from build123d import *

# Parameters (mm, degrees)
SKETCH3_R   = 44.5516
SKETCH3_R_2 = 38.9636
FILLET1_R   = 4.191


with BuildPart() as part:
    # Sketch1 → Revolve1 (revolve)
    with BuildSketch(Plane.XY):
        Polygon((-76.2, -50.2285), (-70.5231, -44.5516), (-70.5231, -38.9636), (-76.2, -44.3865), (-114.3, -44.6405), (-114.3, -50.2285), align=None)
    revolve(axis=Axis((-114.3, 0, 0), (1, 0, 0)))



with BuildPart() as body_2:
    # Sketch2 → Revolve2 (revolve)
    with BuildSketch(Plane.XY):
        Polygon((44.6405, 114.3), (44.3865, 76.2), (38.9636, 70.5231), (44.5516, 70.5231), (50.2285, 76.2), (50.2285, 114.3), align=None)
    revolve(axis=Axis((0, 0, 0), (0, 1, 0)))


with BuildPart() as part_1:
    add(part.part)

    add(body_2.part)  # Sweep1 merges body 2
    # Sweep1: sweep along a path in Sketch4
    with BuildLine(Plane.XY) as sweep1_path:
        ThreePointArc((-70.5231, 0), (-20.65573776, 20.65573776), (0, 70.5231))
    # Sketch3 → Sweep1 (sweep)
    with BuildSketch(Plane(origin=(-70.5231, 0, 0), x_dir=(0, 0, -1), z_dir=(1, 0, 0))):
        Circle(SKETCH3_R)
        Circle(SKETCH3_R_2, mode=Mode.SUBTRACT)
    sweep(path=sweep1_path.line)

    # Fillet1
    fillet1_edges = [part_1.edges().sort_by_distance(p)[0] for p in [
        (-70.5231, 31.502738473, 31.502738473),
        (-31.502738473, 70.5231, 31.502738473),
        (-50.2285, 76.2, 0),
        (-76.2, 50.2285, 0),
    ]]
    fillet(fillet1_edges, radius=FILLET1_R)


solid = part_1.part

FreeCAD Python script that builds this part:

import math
import FreeCAD as App
import Part
import Sketcher
Q = App.Units.Quantity


def edges_at(feature, points):
    """Names of the edges that pass closest to the given points."""
    edges = feature.Shape.Edges
    near = lambda p: min(range(len(edges)), key=lambda i: edges[i].distToShape(Part.Vertex(*p))[0])
    return sorted({f"Edge{near(p) + 1}" for p in points})

doc = App.newDocument("Part")
body = doc.addObject("PartDesign::Body", "Body")

# Sketch on XY plane
sketch1 = doc.addObject("Sketcher::SketchObject", "Sketch")
body.addObject(sketch1)
sketch1.AttachmentSupport = (doc.XY_Plane, [""])
sketch1.MapMode = "FlatFace"
sketch1.addGeometry(Part.LineSegment(App.Vector(-76, -50, 0), App.Vector(-71, -45, 0)), False)
sketch1.addGeometry(Part.LineSegment(App.Vector(-71, -45, 0), App.Vector(-71, -39, 0)), False)
sketch1.addGeometry(Part.LineSegment(App.Vector(-71, -39, 0), App.Vector(-76, -44, 0)), False)
sketch1.addGeometry(Part.LineSegment(App.Vector(-76, -44, 0), App.Vector(-114, -45, 0)), False)
sketch1.addGeometry(Part.LineSegment(App.Vector(-114, -45, 0), App.Vector(-114, -50, 0)), False)
sketch1.addGeometry(Part.LineSegment(App.Vector(-114, -50, 0), App.Vector(-76, -50, 0)), False)
sketch1.addConstraint(Sketcher.Constraint("Coincident", 0, 2, 1, 1))
sketch1.addConstraint(Sketcher.Constraint("Coincident", 1, 2, 2, 1))
sketch1.addConstraint(Sketcher.Constraint("Coincident", 2, 2, 3, 1))
sketch1.addConstraint(Sketcher.Constraint("Coincident", 3, 2, 4, 1))
sketch1.addConstraint(Sketcher.Constraint("Coincident", 4, 2, 5, 1))
sketch1.addConstraint(Sketcher.Constraint("Coincident", 5, 2, 0, 1))
sketch1.addConstraint(Sketcher.Constraint("Vertical", 1))
sketch1.addConstraint(Sketcher.Constraint("Vertical", 4))
sketch1.addConstraint(Sketcher.Constraint("Horizontal", 5))
sketch1.addConstraint(Sketcher.Constraint("Vertical", 2, 2, 5, 2))
sketch1.addConstraint(Sketcher.Constraint("Equal", 1, 4))
sketch1.addConstraint(Sketcher.Constraint("DistanceX", 5, 1, 5, 2, Q("1.5 in")))
sketch1.addConstraint(Sketcher.Constraint("DistanceX", 2, 2, -1, 1, Q("3 in")))
sketch1.addConstraint(Sketcher.Constraint("Angle", 0, Q("45 deg")))
sketch1.addConstraint(Sketcher.Constraint("DistanceY", 1, 1, 1, 2, Q("0.22 in")))
sketch1.addConstraint(Sketcher.Constraint("DistanceY", 3, 2, 2, 2, Q("0.01 in")))
sketch1.addConstraint(Sketcher.Constraint("DistanceY", 0, 2, -1, 1, Q("1.754 in")))
sketch1.addConstraint(Sketcher.Constraint("DistanceX", 0, 2, -1, 1, Q("2.7765 in")))
revolution = doc.addObject("PartDesign::Revolution", "Revolution")
body.addObject(revolution)
revolution.Profile = sketch1
revolution.ReferenceAxis = (sketch1, ["H_Axis"])
revolution.Angle = 360
body2 = doc.addObject("PartDesign::Body", "Body001")

# Sketch on XY plane
sketch2 = doc.addObject("Sketcher::SketchObject", "Sketch001")
body2.addObject(sketch2)
sketch2.AttachmentSupport = (doc.getObject("XY_Plane001"), [""])
sketch2.MapMode = "FlatFace"
sketch2.addGeometry(Part.LineSegment(App.Vector(45, 114, 0), App.Vector(44, 76, 0)), False)
sketch2.addGeometry(Part.LineSegment(App.Vector(44, 76, 0), App.Vector(39, 71, 0)), False)
sketch2.addGeometry(Part.LineSegment(App.Vector(39, 71, 0), App.Vector(45, 71, 0)), False)
sketch2.addGeometry(Part.LineSegment(App.Vector(45, 71, 0), App.Vector(50, 76, 0)), False)
sketch2.addGeometry(Part.LineSegment(App.Vector(50, 76, 0), App.Vector(50, 114, 0)), False)
sketch2.addGeometry(Part.LineSegment(App.Vector(50, 114, 0), App.Vector(45, 114, 0)), False)
sketch2.addConstraint(Sketcher.Constraint("Coincident", 0, 2, 1, 1))
sketch2.addConstraint(Sketcher.Constraint("Coincident", 1, 2, 2, 1))
sketch2.addConstraint(Sketcher.Constraint("Coincident", 2, 2, 3, 1))
sketch2.addConstraint(Sketcher.Constraint("Coincident", 3, 2, 4, 1))
sketch2.addConstraint(Sketcher.Constraint("Coincident", 4, 2, 5, 1))
sketch2.addConstraint(Sketcher.Constraint("Coincident", 5, 2, 0, 1))
sketch2.addConstraint(Sketcher.Constraint("Horizontal", 2))
sketch2.addConstraint(Sketcher.Constraint("Vertical", 4))
sketch2.addConstraint(Sketcher.Constraint("Horizontal", 5))
sketch2.addConstraint(Sketcher.Constraint("Horizontal", 0, 2, 3, 2))
sketch2.addConstraint(Sketcher.Constraint("Equal", 2, 5))
sketch2.addConstraint(Sketcher.Constraint("DistanceY", 4, 1, 4, 2, Q("1.5 in")))
sketch2.addConstraint(Sketcher.Constraint("DistanceY", -1, 1, 0, 2, Q("3 in")))
sketch2.addConstraint(Sketcher.Constraint("Angle", 3, Q("45 deg")))
sketch2.addConstraint(Sketcher.Constraint("DistanceX", 2, 1, 2, 2, Q("0.22 in")))
sketch2.addConstraint(Sketcher.Constraint("DistanceX", 0, 2, 3, 2, Q("0.23 in")))
sketch2.addConstraint(Sketcher.Constraint("DistanceX", -1, 1, 1, 2, Q("1.534 in")))
sketch2.addConstraint(Sketcher.Constraint("DistanceX", -1, 1, 0, 2, Q("1.7475 in")))
revolution2 = doc.addObject("PartDesign::Revolution", "Revolution001")
body2.addObject(revolution2)
revolution2.Profile = sketch2
revolution2.ReferenceAxis = (sketch2, ["V_Axis"])
revolution2.Angle = 360
body.AllowCompound = True
doc.recompute()

boolean = doc.addObject("PartDesign::Boolean", "Boolean")
body.addObject(boolean)
boolean.Type = "Fuse"
boolean.addObjects([body2])

# Sketch on YZ plane
sketch3 = doc.addObject("Sketcher::SketchObject", "Sketch002")
body.addObject(sketch3)
sketch3.AttachmentSupport = (doc.YZ_Plane, [""])
sketch3.MapMode = "FlatFace"
sketch3.AttachmentOffset = App.Placement(App.Vector(0, 0, -2.7765 * 25.4), App.Rotation())
sketch3.addGeometry(Part.Circle(App.Vector(0, 0, 0), App.Vector(0, 0, 1), 45), False)
sketch3.addGeometry(Part.Circle(App.Vector(0, 0, 0), App.Vector(0, 0, 1), 39), False)
sketch3.addConstraint(Sketcher.Constraint("Coincident", 0, 3, -1, 1))
sketch3.addConstraint(Sketcher.Constraint("Coincident", 1, 3, -1, 1))
sketch3.addConstraint(Sketcher.Constraint("Diameter", 0, Q("3.508 in")))
sketch3.addConstraint(Sketcher.Constraint("Diameter", 1, Q("3.068 in")))

# Sketch on XY plane
sketch4 = doc.addObject("Sketcher::SketchObject", "Sketch003")
body.addObject(sketch4)
sketch4.AttachmentSupport = (doc.XY_Plane, [""])
sketch4.MapMode = "FlatFace"
sketch4.addGeometry(Part.ArcOfCircle(Part.Circle(App.Vector(-71, 71, 0), App.Vector(0, 0, 1), 71), math.radians(-90), math.radians(0)), False)
sketch4.addConstraint(Sketcher.Constraint("PointOnObject", 0, 1, -1))
sketch4.addConstraint(Sketcher.Constraint("PointOnObject", 0, 2, -2))
sketch4.addConstraint(Sketcher.Constraint("Radius", 0, Q("2.7765 in")))
sketch4.addConstraint(Sketcher.Constraint("DistanceX", 0, 1, -1, 1, Q("2.7765 in")))
sketch4.addConstraint(Sketcher.Constraint("DistanceY", -1, 1, 0, 2, Q("2.7765 in")))
doc.recompute()

additivepipe = doc.addObject("PartDesign::AdditivePipe", "AdditivePipe")
body.addObject(additivepipe)
additivepipe.Profile = sketch3
additivepipe.Spine = (sketch4, ["Edge1"])
doc.recompute()

fillet = doc.addObject("PartDesign::Fillet", "Fillet")
body.addObject(fillet)
fillet.Base = (additivepipe, edges_at(additivepipe, [
    (-70.523, 31.503, 31.503),
    (-31.503, 70.523, 31.503),
    (-50.228, 76.2, 0),
    (-76.2, 50.228, 0),
]))
fillet.Radius = Q("0.165 in")

doc.recompute()
